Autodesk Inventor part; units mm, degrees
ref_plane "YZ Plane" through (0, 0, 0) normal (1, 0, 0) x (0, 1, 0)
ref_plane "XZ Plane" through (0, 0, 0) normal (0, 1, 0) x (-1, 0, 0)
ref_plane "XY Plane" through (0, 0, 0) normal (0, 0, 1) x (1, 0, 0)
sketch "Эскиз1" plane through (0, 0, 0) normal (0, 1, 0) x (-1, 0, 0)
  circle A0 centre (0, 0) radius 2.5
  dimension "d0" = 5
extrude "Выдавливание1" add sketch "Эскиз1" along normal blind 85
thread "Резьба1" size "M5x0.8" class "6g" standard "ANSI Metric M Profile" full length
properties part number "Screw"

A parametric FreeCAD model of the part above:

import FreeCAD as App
import Part
import Sketcher
Q = App.Units.Quantity

doc = App.newDocument("Part")
body = doc.addObject("PartDesign::Body", "Body")

sketch1 = body.newObject("Sketcher::SketchObject", "Sketch")
sketch1.AttachmentSupport = (doc.getObject("XZ_Plane"), [""])
sketch1.MapMode = "FlatFace"
sketch1.addGeometry(Part.Circle(App.Vector(0, 0, 0), App.Vector(0, 0, 1), 2.5), False)
sketch1.addConstraint([
    Sketcher.Constraint("Coincident", 0, 3, -1, 1),
    Sketcher.Constraint("Diameter", 0, Q("5 mm")),
])
pad1 = body.newObject("PartDesign::Pad", "Pad")
pad1.Profile = sketch1
pad1.Length = 85
pad1.Reversed = True

doc.recompute()
